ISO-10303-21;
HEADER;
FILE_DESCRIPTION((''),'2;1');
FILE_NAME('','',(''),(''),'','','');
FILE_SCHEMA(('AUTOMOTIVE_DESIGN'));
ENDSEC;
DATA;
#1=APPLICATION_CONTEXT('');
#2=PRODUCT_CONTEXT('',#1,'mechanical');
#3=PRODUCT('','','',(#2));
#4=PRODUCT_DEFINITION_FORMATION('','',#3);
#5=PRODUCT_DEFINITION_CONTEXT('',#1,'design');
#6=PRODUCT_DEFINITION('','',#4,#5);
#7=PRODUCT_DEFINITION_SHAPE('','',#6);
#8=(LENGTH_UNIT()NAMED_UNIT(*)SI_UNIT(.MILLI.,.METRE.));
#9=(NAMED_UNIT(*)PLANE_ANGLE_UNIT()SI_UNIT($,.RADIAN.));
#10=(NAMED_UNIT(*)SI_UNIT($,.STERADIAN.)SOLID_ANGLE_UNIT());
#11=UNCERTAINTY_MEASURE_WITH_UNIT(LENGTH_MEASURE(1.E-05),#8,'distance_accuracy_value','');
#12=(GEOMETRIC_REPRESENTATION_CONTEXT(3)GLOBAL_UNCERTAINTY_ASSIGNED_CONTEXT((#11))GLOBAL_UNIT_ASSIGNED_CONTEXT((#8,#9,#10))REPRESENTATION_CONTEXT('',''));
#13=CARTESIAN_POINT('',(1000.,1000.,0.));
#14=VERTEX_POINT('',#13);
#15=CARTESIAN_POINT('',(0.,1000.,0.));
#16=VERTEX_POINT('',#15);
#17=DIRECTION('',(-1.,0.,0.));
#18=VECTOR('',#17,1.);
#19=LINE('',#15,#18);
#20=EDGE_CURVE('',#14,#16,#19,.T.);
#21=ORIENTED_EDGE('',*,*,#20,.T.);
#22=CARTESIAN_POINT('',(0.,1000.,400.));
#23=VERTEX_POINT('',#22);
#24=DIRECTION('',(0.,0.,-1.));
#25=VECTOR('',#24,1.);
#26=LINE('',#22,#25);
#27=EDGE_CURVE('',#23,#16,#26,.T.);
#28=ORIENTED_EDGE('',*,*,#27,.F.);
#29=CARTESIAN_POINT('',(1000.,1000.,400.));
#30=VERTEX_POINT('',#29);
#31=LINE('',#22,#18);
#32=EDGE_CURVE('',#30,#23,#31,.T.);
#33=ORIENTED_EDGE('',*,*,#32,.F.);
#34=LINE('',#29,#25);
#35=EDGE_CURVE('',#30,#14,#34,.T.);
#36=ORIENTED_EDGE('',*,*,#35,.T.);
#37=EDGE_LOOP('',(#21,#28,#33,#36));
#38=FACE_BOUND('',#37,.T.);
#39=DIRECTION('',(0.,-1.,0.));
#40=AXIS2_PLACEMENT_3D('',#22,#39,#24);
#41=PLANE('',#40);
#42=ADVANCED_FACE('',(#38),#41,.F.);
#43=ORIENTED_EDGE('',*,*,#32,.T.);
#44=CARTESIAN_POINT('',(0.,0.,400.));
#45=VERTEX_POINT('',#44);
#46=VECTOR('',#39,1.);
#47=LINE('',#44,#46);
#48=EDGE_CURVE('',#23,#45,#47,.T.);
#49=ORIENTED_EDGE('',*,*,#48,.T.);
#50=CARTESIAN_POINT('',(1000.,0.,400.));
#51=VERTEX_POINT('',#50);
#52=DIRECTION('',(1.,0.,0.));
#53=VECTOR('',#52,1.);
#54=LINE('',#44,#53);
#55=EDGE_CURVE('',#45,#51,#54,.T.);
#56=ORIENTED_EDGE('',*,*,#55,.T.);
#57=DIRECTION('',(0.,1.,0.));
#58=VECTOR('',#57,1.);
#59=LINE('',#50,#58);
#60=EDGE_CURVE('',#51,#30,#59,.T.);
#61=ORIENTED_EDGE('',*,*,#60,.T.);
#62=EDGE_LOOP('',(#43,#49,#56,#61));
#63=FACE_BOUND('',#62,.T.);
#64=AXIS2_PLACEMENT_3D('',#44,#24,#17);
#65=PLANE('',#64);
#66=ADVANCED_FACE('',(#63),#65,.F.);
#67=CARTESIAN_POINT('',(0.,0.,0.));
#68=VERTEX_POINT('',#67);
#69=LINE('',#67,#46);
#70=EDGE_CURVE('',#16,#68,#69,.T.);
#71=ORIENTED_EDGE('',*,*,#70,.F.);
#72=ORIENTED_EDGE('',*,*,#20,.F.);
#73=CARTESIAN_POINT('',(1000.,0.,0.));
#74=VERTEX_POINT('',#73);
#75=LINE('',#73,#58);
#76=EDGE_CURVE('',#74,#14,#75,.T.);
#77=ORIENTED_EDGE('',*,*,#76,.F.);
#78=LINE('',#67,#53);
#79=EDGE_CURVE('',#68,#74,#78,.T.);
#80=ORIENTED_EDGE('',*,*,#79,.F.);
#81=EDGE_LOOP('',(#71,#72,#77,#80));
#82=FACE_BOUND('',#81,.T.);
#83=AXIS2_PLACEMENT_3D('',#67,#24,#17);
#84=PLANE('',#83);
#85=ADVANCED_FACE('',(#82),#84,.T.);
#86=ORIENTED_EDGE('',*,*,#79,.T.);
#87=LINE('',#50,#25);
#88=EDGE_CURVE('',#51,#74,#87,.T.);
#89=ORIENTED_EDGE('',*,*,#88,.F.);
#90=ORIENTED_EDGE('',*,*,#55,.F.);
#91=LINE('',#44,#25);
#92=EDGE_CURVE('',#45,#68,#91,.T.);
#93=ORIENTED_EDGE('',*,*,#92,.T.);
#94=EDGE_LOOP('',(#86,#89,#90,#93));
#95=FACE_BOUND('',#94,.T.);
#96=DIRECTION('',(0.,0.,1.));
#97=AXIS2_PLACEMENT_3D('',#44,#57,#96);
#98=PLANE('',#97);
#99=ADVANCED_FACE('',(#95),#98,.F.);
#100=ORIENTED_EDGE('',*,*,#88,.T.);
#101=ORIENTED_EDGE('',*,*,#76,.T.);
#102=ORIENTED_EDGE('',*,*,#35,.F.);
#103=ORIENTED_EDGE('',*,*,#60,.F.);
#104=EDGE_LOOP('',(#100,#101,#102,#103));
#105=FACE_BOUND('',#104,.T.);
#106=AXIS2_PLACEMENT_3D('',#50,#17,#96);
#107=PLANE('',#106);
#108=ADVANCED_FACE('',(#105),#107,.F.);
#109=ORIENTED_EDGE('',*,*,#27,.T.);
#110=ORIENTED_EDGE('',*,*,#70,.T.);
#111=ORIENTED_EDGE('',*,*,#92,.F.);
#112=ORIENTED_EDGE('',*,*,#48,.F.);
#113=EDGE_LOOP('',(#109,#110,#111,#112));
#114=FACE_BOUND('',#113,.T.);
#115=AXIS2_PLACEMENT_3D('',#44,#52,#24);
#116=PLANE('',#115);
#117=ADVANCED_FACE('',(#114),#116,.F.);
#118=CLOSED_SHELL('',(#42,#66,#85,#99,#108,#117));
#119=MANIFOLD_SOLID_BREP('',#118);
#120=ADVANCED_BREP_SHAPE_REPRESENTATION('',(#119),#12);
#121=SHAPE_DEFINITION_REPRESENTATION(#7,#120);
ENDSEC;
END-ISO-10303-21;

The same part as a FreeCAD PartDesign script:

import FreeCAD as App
import Part
import Sketcher
Q = App.Units.Quantity

doc = App.newDocument("Part")
params = doc.addObject("Spreadsheet::Sheet", "Params")
for row, (alias, value) in enumerate([
    ("sketch1_width", "1000 mm"),
    ("pad1_length", "400 mm"),
], start=1):
    params.set(f"A{row}", alias)
    params.set(f"B{row}", "=" + value)
    params.setAlias(f"B{row}", alias)

body = doc.addObject("PartDesign::Body", "Body")

sketch1 = body.newObject("Sketcher::SketchObject", "Sketch")
sketch1.AttachmentSupport = (doc.getObject("XY_Plane"), [""])
sketch1.MapMode = "FlatFace"
sketch1.addGeometry([
    Part.LineSegment(App.Vector(0, 1000, 0), App.Vector(0, 0, 0)),
    Part.LineSegment(App.Vector(0, 0, 0), App.Vector(1000, 0, 0)),
    Part.LineSegment(App.Vector(1000, 0, 0), App.Vector(1000, 1000, 0)),
    Part.LineSegment(App.Vector(1000, 1000, 0), App.Vector(0, 1000, 0)),
], False)
sketch1.addConstraint([
    Sketcher.Constraint("Coincident", 0, 2, 1, 1),
    Sketcher.Constraint("Coincident", 1, 2, 2, 1),
    Sketcher.Constraint("Coincident", 2, 2, 3, 1),
    Sketcher.Constraint("Coincident", 3, 2, 0, 1),
    Sketcher.Constraint("Vertical", 0),
    Sketcher.Constraint("Horizontal", 1),
    Sketcher.Constraint("Vertical", 2),
    Sketcher.Constraint("Horizontal", 3),
    Sketcher.Constraint("Coincident", 0, 2, -1, 1),
    Sketcher.Constraint("Equal", 3, 0),
    Sketcher.Constraint("DistanceX", 1, 1, 1, 2, Q("1000 mm")),
])
sketch1.setExpression("Constraints[10]", "Params.sketch1_width")
pad1 = body.newObject("PartDesign::Pad", "Pad")
pad1.Profile = sketch1
pad1.setExpression("Length", "Params.pad1_length")

doc.recompute()
